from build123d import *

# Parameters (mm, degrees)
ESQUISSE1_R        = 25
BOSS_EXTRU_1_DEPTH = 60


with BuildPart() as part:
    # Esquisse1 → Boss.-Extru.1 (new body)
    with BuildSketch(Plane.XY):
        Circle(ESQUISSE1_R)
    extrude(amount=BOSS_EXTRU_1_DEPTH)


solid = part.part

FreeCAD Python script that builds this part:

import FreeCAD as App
import Part
import Sketcher
Q = App.Units.Quantity

doc = App.newDocument("Part")
body = doc.addObject("PartDesign::Body", "Body")

sketch1 = body.newObject("Sketcher::SketchObject", "Sketch")
sketch1.AttachmentSupport = (doc.getObject("XY_Plane"), [""])
sketch1.MapMode = "FlatFace"
sketch1.addGeometry(Part.Circle(App.Vector(0, 0, 0), App.Vector(0, 0, 1), 25), False)
sketch1.addConstraint(Sketcher.Constraint("Coincident", 0, 3, -1, 1))
sketch1.addConstraint(Sketcher.Constraint("Diameter", 0, Q("50 mm")))
pad1 = body.newObject("PartDesign::Pad", "Pad")
pad1.Profile = sketch1
pad1.Length = 60

doc.recompute()
